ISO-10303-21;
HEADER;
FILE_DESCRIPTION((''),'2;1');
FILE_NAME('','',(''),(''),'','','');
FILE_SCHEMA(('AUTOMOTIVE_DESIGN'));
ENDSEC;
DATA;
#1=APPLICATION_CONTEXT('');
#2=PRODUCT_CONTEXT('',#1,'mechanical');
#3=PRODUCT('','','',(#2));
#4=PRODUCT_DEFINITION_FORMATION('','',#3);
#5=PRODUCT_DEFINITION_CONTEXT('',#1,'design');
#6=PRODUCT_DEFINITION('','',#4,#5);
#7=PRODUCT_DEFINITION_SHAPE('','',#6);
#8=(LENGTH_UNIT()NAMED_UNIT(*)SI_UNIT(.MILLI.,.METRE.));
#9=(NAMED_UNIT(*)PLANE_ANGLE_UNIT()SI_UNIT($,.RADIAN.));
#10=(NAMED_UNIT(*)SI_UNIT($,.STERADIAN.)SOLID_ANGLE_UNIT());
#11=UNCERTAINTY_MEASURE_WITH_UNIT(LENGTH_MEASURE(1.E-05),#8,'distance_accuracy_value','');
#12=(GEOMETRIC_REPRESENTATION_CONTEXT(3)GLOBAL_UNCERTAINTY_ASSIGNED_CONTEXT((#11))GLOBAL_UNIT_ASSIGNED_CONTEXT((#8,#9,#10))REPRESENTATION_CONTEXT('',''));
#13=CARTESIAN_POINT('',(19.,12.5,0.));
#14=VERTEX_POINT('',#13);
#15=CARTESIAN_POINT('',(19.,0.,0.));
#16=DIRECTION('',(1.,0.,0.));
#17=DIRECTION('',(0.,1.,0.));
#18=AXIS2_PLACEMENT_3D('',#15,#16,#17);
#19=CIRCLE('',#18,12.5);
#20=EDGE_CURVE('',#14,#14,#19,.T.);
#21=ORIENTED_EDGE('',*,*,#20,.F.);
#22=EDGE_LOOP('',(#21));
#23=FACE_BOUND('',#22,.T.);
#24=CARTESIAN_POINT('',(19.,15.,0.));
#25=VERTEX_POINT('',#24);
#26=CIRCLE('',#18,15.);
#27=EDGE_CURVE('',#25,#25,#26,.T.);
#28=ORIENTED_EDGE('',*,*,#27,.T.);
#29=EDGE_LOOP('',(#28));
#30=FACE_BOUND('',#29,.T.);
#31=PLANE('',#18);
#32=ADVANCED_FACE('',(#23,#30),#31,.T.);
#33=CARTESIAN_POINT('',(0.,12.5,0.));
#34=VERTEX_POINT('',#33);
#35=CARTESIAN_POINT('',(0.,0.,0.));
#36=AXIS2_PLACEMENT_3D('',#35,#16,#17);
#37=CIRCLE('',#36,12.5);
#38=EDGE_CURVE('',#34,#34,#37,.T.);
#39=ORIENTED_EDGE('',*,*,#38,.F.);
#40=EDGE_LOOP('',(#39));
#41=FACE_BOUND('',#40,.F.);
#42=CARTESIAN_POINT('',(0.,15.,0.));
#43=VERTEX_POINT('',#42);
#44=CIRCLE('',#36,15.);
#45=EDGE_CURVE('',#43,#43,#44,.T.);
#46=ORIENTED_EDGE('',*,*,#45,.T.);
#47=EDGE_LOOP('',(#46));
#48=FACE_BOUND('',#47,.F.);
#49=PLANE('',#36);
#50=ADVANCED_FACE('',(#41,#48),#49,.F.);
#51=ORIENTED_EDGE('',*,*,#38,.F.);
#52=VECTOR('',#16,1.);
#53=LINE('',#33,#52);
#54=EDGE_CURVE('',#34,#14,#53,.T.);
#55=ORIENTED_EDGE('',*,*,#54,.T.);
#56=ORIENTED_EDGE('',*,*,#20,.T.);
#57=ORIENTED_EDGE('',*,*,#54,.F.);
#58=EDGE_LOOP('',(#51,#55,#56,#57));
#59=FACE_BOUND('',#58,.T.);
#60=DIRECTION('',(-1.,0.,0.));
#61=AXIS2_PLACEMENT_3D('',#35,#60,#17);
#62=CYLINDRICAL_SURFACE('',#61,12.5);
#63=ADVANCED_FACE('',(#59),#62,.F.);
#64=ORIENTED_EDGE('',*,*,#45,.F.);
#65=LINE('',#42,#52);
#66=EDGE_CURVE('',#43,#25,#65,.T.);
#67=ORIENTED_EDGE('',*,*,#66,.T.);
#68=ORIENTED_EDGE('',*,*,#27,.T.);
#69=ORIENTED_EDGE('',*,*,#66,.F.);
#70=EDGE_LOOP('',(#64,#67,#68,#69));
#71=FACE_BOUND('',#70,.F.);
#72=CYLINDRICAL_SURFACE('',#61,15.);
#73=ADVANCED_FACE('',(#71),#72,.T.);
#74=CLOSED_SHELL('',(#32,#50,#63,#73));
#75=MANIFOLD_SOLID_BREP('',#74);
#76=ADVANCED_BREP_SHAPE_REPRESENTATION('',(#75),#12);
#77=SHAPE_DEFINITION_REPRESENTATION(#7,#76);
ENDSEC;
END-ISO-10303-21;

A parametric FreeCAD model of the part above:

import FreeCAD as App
import Part
import Sketcher

V = App.Vector

doc = App.newDocument("Part")
body = doc.addObject("PartDesign::Body", "Body")

sketch1 = body.newObject("Sketcher::SketchObject", "Sketch")
sketch1.AttachmentSupport = (doc.getObject("YZ_Plane"), [""])
sketch1.MapMode = "FlatFace"
sketch1.addGeometry(Part.Circle(V(0, 0, 0), V(0, 0, 1), 15), False)
sketch1.addGeometry(Part.Circle(V(0, 0, 0), V(0, 0, 1), 12), False)
sketch1.addConstraint(Sketcher.Constraint("Coincident", 0, 3, -1, 1))
sketch1.addConstraint(Sketcher.Constraint("Coincident", 1, 3, -1, 1))
sketch1.addConstraint(Sketcher.Constraint("Diameter", 0, 30.0))
sketch1.addConstraint(Sketcher.Constraint("Diameter", 1, 25.0))
pad1 = body.newObject("PartDesign::Pad", "Pad")
pad1.Profile = sketch1
pad1.Length = 19

doc.recompute()
